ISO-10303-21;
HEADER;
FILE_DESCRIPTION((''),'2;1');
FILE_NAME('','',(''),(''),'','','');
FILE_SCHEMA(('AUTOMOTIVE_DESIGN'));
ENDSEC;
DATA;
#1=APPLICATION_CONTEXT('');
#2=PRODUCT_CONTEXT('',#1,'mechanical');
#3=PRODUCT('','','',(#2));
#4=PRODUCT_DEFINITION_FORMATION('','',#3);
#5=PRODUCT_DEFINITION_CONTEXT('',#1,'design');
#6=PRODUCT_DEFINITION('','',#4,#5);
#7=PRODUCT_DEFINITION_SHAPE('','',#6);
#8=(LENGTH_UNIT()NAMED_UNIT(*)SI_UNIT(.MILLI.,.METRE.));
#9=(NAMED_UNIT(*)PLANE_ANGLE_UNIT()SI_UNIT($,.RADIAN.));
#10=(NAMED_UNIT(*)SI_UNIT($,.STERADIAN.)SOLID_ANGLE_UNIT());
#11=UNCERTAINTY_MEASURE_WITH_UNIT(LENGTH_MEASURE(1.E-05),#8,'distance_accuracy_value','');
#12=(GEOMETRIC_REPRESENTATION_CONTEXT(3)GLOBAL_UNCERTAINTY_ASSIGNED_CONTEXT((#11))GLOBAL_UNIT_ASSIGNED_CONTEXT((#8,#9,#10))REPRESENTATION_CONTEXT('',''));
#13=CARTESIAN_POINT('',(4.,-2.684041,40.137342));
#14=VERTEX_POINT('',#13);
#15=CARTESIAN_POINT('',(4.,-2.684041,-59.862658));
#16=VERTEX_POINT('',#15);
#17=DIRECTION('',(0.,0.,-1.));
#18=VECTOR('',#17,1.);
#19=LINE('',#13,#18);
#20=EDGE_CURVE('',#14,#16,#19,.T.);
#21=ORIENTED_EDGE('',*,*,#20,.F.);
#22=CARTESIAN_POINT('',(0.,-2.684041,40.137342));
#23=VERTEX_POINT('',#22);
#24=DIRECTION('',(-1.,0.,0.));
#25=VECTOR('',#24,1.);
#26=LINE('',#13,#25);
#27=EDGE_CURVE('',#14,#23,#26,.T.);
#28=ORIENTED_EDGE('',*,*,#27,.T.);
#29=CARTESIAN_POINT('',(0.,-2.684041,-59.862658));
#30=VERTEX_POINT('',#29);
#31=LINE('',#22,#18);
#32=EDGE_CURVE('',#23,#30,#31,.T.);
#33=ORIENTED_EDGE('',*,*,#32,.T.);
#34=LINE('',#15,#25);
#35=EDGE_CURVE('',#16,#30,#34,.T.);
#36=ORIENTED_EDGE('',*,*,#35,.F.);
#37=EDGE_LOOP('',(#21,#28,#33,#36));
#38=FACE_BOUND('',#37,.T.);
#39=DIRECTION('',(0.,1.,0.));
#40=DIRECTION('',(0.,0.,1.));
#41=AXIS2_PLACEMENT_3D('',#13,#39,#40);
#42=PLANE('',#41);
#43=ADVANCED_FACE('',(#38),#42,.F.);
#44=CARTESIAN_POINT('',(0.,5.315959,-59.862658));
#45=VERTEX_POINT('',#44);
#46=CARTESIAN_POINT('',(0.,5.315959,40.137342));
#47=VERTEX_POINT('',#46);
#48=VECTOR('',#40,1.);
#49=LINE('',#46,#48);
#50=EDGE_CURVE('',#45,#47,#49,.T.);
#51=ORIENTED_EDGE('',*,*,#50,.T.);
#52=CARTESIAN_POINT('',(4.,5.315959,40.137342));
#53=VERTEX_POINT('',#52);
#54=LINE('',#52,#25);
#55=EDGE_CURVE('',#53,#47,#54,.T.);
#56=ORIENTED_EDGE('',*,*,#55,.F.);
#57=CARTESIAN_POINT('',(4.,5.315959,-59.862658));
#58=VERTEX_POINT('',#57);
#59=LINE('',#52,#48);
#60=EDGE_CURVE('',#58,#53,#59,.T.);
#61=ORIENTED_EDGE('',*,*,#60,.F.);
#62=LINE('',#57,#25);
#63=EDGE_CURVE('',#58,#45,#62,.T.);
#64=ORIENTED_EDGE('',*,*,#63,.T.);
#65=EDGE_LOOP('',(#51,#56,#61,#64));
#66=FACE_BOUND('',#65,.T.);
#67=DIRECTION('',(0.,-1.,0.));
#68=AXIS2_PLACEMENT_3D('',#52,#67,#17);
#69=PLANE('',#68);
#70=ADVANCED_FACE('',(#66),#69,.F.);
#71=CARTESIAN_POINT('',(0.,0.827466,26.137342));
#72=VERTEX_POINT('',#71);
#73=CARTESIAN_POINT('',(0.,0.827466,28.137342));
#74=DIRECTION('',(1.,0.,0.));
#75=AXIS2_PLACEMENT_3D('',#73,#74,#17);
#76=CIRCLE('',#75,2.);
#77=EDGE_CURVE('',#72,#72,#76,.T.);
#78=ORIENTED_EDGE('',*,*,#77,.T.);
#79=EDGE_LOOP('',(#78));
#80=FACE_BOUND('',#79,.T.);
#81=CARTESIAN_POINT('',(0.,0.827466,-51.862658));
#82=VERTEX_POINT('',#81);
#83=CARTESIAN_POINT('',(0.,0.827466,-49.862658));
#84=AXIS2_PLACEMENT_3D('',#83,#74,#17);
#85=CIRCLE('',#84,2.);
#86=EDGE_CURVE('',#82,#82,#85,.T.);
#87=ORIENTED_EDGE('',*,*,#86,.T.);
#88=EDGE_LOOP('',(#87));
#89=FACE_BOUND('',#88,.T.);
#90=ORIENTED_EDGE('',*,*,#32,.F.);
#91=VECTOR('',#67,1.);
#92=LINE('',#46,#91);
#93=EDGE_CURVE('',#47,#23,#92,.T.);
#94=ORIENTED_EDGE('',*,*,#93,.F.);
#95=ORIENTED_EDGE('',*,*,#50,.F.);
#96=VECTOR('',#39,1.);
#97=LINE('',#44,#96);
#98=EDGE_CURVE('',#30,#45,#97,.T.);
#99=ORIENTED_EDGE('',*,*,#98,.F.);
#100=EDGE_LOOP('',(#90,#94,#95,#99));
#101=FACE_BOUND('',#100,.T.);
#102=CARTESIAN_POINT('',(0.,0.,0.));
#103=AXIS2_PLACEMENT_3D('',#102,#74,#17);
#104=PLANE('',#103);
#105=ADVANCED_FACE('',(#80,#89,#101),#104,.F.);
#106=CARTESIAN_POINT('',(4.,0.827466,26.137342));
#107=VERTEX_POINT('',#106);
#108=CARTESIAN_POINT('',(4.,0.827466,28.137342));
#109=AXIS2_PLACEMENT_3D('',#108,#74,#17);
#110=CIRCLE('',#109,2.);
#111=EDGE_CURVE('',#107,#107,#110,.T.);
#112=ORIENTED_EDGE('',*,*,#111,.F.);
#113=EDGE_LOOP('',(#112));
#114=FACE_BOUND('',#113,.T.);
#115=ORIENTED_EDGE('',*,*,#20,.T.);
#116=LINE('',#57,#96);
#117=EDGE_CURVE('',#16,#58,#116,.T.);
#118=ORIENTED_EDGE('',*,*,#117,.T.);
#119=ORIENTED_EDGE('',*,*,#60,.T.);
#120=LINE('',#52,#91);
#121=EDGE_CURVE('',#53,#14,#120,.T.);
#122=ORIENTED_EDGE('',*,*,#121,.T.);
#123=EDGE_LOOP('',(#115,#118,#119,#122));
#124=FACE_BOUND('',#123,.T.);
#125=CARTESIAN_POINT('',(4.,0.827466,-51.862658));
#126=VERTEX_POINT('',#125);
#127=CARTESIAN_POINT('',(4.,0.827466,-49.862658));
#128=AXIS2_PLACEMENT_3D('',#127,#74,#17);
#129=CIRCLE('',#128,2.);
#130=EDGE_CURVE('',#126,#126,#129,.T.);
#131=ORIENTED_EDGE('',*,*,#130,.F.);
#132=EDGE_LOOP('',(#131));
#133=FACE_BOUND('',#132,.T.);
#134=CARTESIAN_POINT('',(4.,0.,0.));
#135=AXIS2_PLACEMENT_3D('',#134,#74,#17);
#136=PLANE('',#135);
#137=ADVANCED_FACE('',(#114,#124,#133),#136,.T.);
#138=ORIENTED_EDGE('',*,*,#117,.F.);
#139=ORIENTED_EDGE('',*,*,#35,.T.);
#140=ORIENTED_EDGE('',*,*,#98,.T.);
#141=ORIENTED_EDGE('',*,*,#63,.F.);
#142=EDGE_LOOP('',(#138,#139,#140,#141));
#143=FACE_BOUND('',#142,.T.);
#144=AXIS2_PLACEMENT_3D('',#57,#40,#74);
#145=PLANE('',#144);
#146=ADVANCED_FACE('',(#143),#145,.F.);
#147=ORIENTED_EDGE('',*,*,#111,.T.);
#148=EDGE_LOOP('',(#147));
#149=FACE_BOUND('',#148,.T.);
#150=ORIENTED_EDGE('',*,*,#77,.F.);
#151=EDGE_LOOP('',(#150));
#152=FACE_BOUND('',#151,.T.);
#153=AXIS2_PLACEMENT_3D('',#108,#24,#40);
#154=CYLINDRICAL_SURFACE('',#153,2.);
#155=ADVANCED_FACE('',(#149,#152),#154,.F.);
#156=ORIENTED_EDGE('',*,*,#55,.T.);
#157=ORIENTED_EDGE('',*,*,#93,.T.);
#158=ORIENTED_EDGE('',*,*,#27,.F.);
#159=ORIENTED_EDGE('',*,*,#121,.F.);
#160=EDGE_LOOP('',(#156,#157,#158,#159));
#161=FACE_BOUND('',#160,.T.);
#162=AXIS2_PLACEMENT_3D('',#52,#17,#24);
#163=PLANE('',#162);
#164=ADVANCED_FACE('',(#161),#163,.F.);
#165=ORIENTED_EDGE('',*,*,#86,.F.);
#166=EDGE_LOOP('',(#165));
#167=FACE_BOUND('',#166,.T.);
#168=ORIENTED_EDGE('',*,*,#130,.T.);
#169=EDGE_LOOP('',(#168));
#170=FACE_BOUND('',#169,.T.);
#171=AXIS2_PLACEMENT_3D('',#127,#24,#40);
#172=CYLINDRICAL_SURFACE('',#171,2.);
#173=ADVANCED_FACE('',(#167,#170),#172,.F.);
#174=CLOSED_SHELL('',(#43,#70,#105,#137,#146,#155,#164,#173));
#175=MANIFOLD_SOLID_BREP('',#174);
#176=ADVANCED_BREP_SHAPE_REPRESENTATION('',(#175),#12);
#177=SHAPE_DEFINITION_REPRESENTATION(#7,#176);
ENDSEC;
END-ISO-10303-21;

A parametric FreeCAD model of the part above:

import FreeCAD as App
import Part
import Sketcher


def add_polygon(sketch, points):
    """Adds a closed chain of lines whose ends are joined by coincident constraints."""
    first, n = sketch.GeometryCount, len(points)
    for a, b in zip(points, points[1:] + points[:1]):
        sketch.addGeometry(Part.LineSegment(App.Vector(*a, 0), App.Vector(*b, 0)), False)
    for i in range(n):
        sketch.addConstraint(Sketcher.Constraint("Coincident", first + i, 2, first + (i + 1) % n, 1))

doc = App.newDocument("Part")
body = doc.addObject("PartDesign::Body", "Body")

sketch1 = body.newObject("Sketcher::SketchObject", "Sketch")
sketch1.AttachmentSupport = (doc.getObject("YZ_Plane"), [""])
sketch1.MapMode = "FlatFace"
add_polygon(sketch1, [(5.3, 40.1), (-2.7, 40.1), (-2.7, -59.9), (5.3, -59.9)])
sketch1.addGeometry(Part.Circle(App.Vector(0.8, 28.1, 0), App.Vector(0, 0, 1), 2), False)
sketch1.addGeometry(Part.Circle(App.Vector(0.8, -49.9, 0), App.Vector(0, 0, 1), 2), False)
sketch1.addConstraint([
    Sketcher.Constraint("Horizontal", 0),
    Sketcher.Constraint("Vertical", 1),
    Sketcher.Constraint("Horizontal", 2),
    Sketcher.Constraint("Vertical", 3),
    Sketcher.Constraint("Equal", 4, 5),
    Sketcher.Constraint("Vertical", 4, 3, 5, 3),
    Sketcher.Constraint("Diameter", 4, 4.0),
    Sketcher.Constraint("DistanceX", 0, 2, 0, 1, 8.0),
    Sketcher.Constraint("DistanceY", 1, 2, 1, 1, 100.0),
    Sketcher.Constraint("DistanceY", 5, 3, 4, 3, 78.0),
    Sketcher.Constraint("DistanceY", 4, 3, 0, 2, 12.0),
    Sketcher.Constraint("DistanceY", -1, 1, 4, 3, 28.137342),
    Sketcher.Constraint("DistanceX", 0, 2, -1, 1, 2.684041),
    Sketcher.Constraint("DistanceX", -1, 1, 4, 3, 0.827466),
])
pad1 = body.newObject("PartDesign::Pad", "Pad")
pad1.Profile = sketch1
pad1.Length = 4

doc.recompute()
